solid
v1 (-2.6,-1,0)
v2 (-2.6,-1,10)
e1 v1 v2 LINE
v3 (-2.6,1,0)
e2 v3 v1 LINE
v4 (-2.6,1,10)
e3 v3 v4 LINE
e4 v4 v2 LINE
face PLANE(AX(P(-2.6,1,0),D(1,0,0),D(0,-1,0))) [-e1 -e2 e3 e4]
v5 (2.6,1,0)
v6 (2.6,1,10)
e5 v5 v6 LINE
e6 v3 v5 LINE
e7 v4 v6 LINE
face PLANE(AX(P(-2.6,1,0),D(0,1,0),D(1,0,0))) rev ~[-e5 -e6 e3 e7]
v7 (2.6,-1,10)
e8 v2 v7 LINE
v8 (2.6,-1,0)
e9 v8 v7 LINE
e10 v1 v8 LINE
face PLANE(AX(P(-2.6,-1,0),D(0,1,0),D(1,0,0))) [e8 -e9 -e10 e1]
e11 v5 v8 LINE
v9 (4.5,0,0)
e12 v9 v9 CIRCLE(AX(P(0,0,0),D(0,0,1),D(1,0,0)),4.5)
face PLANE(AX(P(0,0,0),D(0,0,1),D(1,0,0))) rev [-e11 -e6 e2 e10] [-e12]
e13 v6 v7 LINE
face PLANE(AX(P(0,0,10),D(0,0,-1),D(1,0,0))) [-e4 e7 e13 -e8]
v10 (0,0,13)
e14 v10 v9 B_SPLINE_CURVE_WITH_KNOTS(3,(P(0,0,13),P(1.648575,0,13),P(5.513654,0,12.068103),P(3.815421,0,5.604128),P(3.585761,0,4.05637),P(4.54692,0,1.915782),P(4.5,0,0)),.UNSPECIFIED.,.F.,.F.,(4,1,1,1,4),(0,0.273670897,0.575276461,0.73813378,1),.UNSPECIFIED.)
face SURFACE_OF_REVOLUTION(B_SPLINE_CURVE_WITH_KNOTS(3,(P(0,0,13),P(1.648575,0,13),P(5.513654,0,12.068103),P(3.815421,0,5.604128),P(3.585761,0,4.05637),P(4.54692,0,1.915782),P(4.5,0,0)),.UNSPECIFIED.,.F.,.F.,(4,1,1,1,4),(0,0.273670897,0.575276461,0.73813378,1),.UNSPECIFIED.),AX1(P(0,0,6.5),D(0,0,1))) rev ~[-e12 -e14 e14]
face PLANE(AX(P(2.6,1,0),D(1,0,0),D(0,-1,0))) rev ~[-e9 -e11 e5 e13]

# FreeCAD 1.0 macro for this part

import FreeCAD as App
import Part
import Sketcher


def add_polygon(sketch, points):
    """Adds a closed chain of lines whose ends are joined by coincident constraints."""
    first, n = sketch.GeometryCount, len(points)
    for a, b in zip(points, points[1:] + points[:1]):
        sketch.addGeometry(Part.LineSegment(App.Vector(*a, 0), App.Vector(*b, 0)), False)
    for i in range(n):
        sketch.addConstraint(Sketcher.Constraint("Coincident", first + i, 2, first + (i + 1) % n, 1))

doc = App.newDocument("Part")
body = doc.addObject("PartDesign::Body", "Body")

# Sketch on XZ plane
sketch1 = body.newObject("Sketcher::SketchObject", "Sketch")
sketch1.AttachmentSupport = (doc.getObject("XZ_Plane"), [""])
sketch1.MapMode = "FlatFace"
sketch1.addGeometry(Part.LineSegment(App.Vector(0, 13, 0), App.Vector(0, 0, 0)), False)
sketch1.addGeometry(Part.LineSegment(App.Vector(0, 0, 0), App.Vector(4.5, 0, 0)), False)
sketch1.addGeometry(Part.BSplineCurve([App.Vector(0, 13, 0), App.Vector(1.648575, 13, 0), App.Vector(5.513654, 12.068103, 0), App.Vector(3.815421, 5.604128, 0), App.Vector(3.585761, 4.05637, 0), App.Vector(4.54692, 1.915782, 0), App.Vector(4.5, 0, 0)], [4, 1, 1, 1, 4], [0, 0.273670897, 0.575276461, 0.73813378, 1], False, 3, [1, 1, 1, 1, 1, 1, 1], False), False)
sketch1.addConstraint(Sketcher.Constraint("Block", 2))
sketch1.addConstraint(Sketcher.Constraint("Coincident", 0, 2, 1, 1))
sketch1.addConstraint(Sketcher.Constraint("Coincident", 1, 2, 2, 2))
sketch1.addConstraint(Sketcher.Constraint("Coincident", 2, 1, 0, 1))
sketch1.addConstraint(Sketcher.Constraint("Vertical", 0))
sketch1.addConstraint(Sketcher.Constraint("Horizontal", 1))
revolution = body.newObject("PartDesign::Revolution", "Revolution")
revolution.Profile = sketch1
revolution.ReferenceAxis = (sketch1, ["V_Axis"])
revolution.Angle = 360

# Sketch on XY plane
sketch2 = body.newObject("Sketcher::SketchObject", "Sketch001")
sketch2.AttachmentSupport = (doc.getObject("XY_Plane"), [""])
sketch2.MapMode = "FlatFace"
add_polygon(sketch2, [(-2.6, -1), (-2.6, 1), (2.6, 1), (2.6, -1)])  # lines 0-3
sketch2.addConstraint(Sketcher.Constraint("Vertical", 0))
sketch2.addConstraint(Sketcher.Constraint("Horizontal", 1))
sketch2.addConstraint(Sketcher.Constraint("Vertical", 2))
sketch2.addConstraint(Sketcher.Constraint("Horizontal", 3))
sketch2.addConstraint(Sketcher.Constraint("Symmetric", 0, 2, 2, 2, -1, 1))
sketch2.addConstraint(Sketcher.Constraint("DistanceY", 0, 1, 0, 2, 2.0))
sketch2.addConstraint(Sketcher.Constraint("DistanceX", 1, 1, 1, 2, 5.2))
pocket1 = body.newObject("PartDesign::Pocket", "Pocket")
pocket1.Profile = sketch2
pocket1.Length = 10
pocket1.Reversed = True

doc.recompute()
